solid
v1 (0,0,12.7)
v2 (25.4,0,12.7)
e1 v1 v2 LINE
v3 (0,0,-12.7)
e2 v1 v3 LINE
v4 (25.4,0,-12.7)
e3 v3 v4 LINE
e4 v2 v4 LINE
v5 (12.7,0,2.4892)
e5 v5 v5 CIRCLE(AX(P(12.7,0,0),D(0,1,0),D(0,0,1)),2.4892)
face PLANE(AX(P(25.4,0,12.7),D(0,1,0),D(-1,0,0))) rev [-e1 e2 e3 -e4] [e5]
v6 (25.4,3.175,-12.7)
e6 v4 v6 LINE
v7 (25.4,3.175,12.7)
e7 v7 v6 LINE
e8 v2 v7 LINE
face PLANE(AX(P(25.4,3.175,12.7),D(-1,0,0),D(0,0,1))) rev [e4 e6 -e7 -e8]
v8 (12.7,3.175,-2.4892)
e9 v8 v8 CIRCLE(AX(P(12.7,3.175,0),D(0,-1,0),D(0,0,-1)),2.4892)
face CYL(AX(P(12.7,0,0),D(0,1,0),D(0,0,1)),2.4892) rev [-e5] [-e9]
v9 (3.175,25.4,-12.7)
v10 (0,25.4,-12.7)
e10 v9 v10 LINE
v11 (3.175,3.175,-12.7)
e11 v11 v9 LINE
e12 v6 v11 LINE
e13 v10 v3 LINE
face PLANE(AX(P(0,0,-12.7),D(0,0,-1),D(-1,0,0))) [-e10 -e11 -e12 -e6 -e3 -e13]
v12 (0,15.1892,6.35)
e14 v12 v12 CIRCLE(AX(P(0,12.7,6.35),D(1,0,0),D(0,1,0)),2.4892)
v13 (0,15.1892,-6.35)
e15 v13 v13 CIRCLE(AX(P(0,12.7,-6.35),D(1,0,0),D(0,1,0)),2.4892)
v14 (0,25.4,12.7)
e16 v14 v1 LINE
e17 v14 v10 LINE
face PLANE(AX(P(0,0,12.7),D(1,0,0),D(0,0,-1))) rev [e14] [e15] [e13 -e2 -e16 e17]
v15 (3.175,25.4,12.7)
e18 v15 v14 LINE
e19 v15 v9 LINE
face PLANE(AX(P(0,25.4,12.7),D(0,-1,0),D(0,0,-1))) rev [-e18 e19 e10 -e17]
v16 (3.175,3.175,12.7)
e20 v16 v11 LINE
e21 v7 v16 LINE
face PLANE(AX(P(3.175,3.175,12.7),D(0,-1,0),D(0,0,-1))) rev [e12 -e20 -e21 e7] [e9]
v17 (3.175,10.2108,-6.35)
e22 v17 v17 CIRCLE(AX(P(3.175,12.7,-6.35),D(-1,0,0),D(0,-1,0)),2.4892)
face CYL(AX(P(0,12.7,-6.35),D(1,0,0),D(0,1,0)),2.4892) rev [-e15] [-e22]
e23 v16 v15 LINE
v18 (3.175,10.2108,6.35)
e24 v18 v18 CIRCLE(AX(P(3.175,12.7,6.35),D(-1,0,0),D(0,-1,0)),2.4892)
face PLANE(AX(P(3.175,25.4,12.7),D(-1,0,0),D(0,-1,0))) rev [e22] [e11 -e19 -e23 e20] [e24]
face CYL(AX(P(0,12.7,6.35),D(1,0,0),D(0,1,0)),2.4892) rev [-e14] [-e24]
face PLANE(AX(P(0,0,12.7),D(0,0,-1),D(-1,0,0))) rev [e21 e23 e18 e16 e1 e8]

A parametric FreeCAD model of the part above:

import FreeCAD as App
import Part
import Sketcher
Q = App.Units.Quantity


def add_polygon(sketch, points):
    """Adds a closed chain of lines whose ends are joined by coincident constraints."""
    first, n = sketch.GeometryCount, len(points)
    for a, b in zip(points, points[1:] + points[:1]):
        sketch.addGeometry(Part.LineSegment(App.Vector(*a, 0), App.Vector(*b, 0)), False)
    for i in range(n):
        sketch.addConstraint(Sketcher.Constraint("Coincident", first + i, 2, first + (i + 1) % n, 1))

doc = App.newDocument("Part")
body = doc.addObject("PartDesign::Body", "Body")

# Sketch on XY plane
sketch1 = body.newObject("Sketcher::SketchObject", "Sketch")
sketch1.AttachmentSupport = (doc.getObject("XY_Plane"), [""])
sketch1.MapMode = "FlatFace"
add_polygon(sketch1, [(0, 25.4), (0, 0), (25.4, 0), (25.4, 3.2), (3.2, 3.2), (3.2, 25.4)])  # lines 0-5
sketch1.addConstraint([
    Sketcher.Constraint("Vertical", 0),
    Sketcher.Constraint("Horizontal", 1),
    Sketcher.Constraint("Vertical", 2),
    Sketcher.Constraint("Horizontal", 3),
    Sketcher.Constraint("Vertical", 4),
    Sketcher.Constraint("Horizontal", 5),
    Sketcher.Constraint("Coincident", 0, 2, -1, 1),
    Sketcher.Constraint("Equal", 1, 0),
    Sketcher.Constraint("Equal", 5, 2),
    Sketcher.Constraint("DistanceX", 1, 1, 1, 2, Q("1 in")),
    Sketcher.Constraint("DistanceX", 3, 2, 3, 1, Q("0.875 in")),
])
pad1 = body.newObject("PartDesign::Pad", "Pad")
pad1.Profile = sketch1
pad1.Length = Q("1 in")
pad1.Midplane = True

# Sketch on XZ plane
sketch2 = body.newObject("Sketcher::SketchObject", "Sketch001")
sketch2.AttachmentSupport = (doc.getObject("XZ_Plane"), [""])
sketch2.MapMode = "FlatFace"
sketch2.AttachmentOffset = App.Placement(App.Vector(0, 0, -0.125 * 25.4), App.Rotation())
sketch2.addGeometry(Part.Circle(App.Vector(12.7, 0, 0), App.Vector(0, 0, 1), 2.5), False)
sketch2.addConstraint([
    Sketcher.Constraint("PointOnObject", 0, 3, -1),
    Sketcher.Constraint("Diameter", 0, Q("0.196 in")),
    Sketcher.Constraint("DistanceX", -1, 1, 0, 3, Q("0.5 in")),
])
pocket1 = body.newObject("PartDesign::Pocket", "Pocket")
pocket1.Profile = sketch2
pocket1.Type = "ThroughAll"
pocket1.Midplane = True

# Sketch on YZ plane
sketch3 = body.newObject("Sketcher::SketchObject", "Sketch002")
sketch3.AttachmentSupport = (doc.getObject("YZ_Plane"), [""])
sketch3.MapMode = "FlatFace"
sketch3.AttachmentOffset = App.Placement(App.Vector(0, 0, 0.125 * 25.4), App.Rotation())
sketch3.addGeometry([
    Part.Circle(App.Vector(12.7, 6.3, 0), App.Vector(0, 0, 1), 2.5),
    Part.Circle(App.Vector(12.7, -6.3, 0), App.Vector(0, 0, 1), 2.5),
], False)
sketch3.addConstraint([
    Sketcher.Constraint("Equal", 0, 1),
    Sketcher.Constraint("Symmetric", 0, 3, 1, 3, -1),
    Sketcher.Constraint("Diameter", 0, Q("0.196 in")),
    Sketcher.Constraint("DistanceX", -1, 1, 0, 3, Q("0.5 in")),
    Sketcher.Constraint("DistanceY", 1, 3, 0, 3, Q("0.5 in")),
])
pocket2 = body.newObject("PartDesign::Pocket", "Pocket001")
pocket2.Profile = sketch3
pocket2.Type = "ThroughAll"
pocket2.Midplane = True

doc.recompute()
